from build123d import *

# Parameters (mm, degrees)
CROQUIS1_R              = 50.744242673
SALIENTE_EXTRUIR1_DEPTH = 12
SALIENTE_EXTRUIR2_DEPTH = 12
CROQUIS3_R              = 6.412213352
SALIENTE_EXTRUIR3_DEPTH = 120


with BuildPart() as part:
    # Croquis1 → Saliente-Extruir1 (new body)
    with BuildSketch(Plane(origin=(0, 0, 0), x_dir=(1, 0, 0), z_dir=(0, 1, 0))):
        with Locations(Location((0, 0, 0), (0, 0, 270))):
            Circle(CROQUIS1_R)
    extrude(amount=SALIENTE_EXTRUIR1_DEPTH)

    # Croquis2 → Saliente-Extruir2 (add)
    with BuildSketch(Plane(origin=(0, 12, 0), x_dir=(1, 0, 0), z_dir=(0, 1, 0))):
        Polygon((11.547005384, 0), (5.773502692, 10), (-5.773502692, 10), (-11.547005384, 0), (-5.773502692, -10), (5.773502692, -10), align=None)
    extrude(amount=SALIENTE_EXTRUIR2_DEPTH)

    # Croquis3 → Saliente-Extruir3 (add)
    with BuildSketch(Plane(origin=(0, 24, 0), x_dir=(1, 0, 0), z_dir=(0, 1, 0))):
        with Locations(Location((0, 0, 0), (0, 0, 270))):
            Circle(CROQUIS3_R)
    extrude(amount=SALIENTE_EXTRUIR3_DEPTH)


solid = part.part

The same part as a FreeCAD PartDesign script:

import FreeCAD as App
import Part
import Sketcher

V = App.Vector
Q = App.Units.Quantity

doc = App.newDocument("Part")
params = doc.addObject("Spreadsheet::Sheet", "Params")
for row, (alias, value) in enumerate([
    ("pad1_length", "12 mm"),
    ("pad2_length", "12 mm"),
    ("pad3_length", "120 mm"),
], start=1):
    params.set(f"A{row}", alias)
    params.set(f"B{row}", "=" + value)
    params.setAlias(f"B{row}", alias)

body = doc.addObject("PartDesign::Body", "Body")

# Sketch on XZ plane
sketch1 = body.newObject("Sketcher::SketchObject", "Sketch")
sketch1.AttachmentSupport = (doc.getObject("XZ_Plane"), [""])
sketch1.MapMode = "FlatFace"
sketch1.addGeometry(Part.Circle(V(0, 0, 0), V(0, 0, 1), 51), False)
sketch1.addConstraint([
    Sketcher.Constraint("Coincident", 0, 3, -1, 1),
    Sketcher.Constraint("Diameter", 0, 101.488485),
])
pad1 = body.newObject("PartDesign::Pad", "Pad")
pad1.Profile = sketch1
pad1.setExpression("Length", "Params.pad1_length")
pad1.Reversed = True

# Sketch on XZ plane
sketch2 = body.newObject("Sketcher::SketchObject", "Sketch001")
sketch2.AttachmentSupport = (doc.getObject("XZ_Plane"), [""])
sketch2.MapMode = "FlatFace"
sketch2.AttachmentOffset = App.Placement(V(0, 0, -12), App.Rotation())
sketch2.addGeometry([
    Part.LineSegment(V(12, 0, 0), V(6, -10, 0)),  # 0
    Part.LineSegment(V(6, -10, 0), V(-6, -10, 0)),  # 1
    Part.LineSegment(V(-6, -10, 0), V(-12, 0, 0)),  # 2
    Part.LineSegment(V(-12, 0, 0), V(-6, 10, 0)),  # 3
    Part.LineSegment(V(-6, 10, 0), V(6, 10, 0)),  # 4
    Part.LineSegment(V(6, 10, 0), V(12, 0, 0)),  # 5
], False)
sketch2.addConstraint([
    Sketcher.Constraint("Coincident", 0, 2, 1, 1),
    Sketcher.Constraint("Coincident", 1, 2, 2, 1),
    Sketcher.Constraint("Coincident", 2, 2, 3, 1),
    Sketcher.Constraint("Coincident", 3, 2, 4, 1),
    Sketcher.Constraint("Coincident", 4, 2, 5, 1),
    Sketcher.Constraint("Coincident", 5, 2, 0, 1),
    Sketcher.Constraint("Horizontal", 1),
    Sketcher.Constraint("Horizontal", 4),
    Sketcher.Constraint("Symmetric", 0, 2, 3, 2, -1, 1),
    Sketcher.Constraint("Symmetric", 2, 2, 5, 2, -1, 1),
    Sketcher.Constraint("PointOnObject", 2, 2, -1),
    Sketcher.Constraint("Parallel", 2, 5),
    Sketcher.Constraint("Vertical", 1, 2, 3, 2),
    Sketcher.Constraint("Angle", 0, Q("-120 deg")),
    Sketcher.Constraint("DistanceY", 0, 2, -1, 1, 10.0),
    Sketcher.Constraint("DistanceX", 1, 2, 1, 1, 11.547005),
])
pad2 = body.newObject("PartDesign::Pad", "Pad001")
pad2.Profile = sketch2
pad2.setExpression("Length", "Params.pad2_length")
pad2.Reversed = True

# Sketch on XZ plane
sketch3 = body.newObject("Sketcher::SketchObject", "Sketch002")
sketch3.AttachmentSupport = (doc.getObject("XZ_Plane"), [""])
sketch3.MapMode = "FlatFace"
sketch3.AttachmentOffset = App.Placement(V(0, 0, -24), App.Rotation())
sketch3.addGeometry(Part.Circle(V(0, 0, 0), V(0, 0, 1), 6), False)
sketch3.addConstraint([
    Sketcher.Constraint("Coincident", 0, 3, -1, 1),
    Sketcher.Constraint("Diameter", 0, 12.824427),
])
pad3 = body.newObject("PartDesign::Pad", "Pad002")
pad3.Profile = sketch3
pad3.setExpression("Length", "Params.pad3_length")
pad3.Reversed = True

doc.recompute()
